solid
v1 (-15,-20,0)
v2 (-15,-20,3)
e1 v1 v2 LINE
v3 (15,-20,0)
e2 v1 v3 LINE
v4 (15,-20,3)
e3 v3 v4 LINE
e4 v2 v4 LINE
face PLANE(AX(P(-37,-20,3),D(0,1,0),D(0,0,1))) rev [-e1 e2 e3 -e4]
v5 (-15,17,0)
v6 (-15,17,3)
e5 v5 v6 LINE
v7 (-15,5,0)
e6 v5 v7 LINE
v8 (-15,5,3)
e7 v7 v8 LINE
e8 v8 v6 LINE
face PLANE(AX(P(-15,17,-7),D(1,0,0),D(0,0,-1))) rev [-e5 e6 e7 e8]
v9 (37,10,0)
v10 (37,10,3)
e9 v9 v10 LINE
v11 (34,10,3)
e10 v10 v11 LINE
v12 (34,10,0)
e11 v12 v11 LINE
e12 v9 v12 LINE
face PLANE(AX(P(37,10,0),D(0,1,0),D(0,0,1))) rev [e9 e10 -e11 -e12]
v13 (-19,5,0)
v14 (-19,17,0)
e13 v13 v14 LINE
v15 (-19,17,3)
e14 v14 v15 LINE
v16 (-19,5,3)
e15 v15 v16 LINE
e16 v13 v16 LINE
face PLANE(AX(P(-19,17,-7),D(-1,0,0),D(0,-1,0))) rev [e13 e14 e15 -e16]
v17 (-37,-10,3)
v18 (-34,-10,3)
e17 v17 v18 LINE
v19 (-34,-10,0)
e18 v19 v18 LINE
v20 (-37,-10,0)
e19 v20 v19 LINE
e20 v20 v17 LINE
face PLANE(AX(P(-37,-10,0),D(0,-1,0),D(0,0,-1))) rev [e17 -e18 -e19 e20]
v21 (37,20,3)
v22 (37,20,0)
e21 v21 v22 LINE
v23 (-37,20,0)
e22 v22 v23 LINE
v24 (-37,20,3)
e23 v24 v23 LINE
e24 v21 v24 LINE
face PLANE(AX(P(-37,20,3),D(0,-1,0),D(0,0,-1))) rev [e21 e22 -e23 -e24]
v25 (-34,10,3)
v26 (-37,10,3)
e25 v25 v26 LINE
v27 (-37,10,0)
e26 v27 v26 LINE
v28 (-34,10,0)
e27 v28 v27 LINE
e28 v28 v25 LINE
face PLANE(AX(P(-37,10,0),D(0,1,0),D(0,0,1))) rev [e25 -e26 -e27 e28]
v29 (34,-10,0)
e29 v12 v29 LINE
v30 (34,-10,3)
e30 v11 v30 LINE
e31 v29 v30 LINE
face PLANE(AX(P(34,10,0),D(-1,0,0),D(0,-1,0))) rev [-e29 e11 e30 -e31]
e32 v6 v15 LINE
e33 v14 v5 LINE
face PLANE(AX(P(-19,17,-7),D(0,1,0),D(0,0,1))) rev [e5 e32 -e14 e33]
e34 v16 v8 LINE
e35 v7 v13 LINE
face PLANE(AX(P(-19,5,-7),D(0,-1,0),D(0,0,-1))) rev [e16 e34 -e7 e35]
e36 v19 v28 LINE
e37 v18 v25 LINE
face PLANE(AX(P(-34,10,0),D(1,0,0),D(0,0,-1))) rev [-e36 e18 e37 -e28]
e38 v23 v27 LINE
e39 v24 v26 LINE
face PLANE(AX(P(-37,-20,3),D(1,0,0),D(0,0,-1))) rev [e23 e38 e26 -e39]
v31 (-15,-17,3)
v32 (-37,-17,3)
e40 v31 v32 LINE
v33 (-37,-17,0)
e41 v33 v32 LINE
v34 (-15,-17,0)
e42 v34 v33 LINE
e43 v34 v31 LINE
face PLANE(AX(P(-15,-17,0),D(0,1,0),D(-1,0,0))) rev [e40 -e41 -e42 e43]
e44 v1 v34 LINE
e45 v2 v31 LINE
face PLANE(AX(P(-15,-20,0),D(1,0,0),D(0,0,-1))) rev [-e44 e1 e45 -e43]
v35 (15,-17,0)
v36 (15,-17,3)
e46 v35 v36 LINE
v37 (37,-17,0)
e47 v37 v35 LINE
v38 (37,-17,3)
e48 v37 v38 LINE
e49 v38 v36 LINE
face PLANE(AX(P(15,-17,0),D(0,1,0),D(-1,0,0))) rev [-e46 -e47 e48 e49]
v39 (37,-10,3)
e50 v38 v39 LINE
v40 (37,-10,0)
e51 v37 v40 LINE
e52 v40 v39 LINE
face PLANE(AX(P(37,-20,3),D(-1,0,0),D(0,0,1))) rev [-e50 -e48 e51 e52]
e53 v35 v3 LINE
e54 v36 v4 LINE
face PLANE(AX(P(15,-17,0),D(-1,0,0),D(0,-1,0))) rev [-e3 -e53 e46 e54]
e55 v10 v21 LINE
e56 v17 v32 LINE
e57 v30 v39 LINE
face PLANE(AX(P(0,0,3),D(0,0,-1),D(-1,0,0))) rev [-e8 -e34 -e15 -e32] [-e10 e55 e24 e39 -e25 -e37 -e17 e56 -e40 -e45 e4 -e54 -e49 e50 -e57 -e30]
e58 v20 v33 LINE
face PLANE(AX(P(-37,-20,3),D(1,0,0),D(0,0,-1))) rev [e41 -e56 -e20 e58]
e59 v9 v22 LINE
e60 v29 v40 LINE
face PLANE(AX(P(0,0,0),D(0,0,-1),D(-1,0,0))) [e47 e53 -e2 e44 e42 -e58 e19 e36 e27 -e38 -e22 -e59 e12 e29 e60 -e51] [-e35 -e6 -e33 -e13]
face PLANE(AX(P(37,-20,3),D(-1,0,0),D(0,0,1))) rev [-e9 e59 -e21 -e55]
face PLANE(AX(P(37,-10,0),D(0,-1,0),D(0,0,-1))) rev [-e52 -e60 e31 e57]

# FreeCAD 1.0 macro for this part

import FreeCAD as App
import Part
import Sketcher
from FreeCAD import Vector

doc = App.newDocument("Part")
body = doc.addObject("PartDesign::Body", "Body")

# Sketch on XY plane
sketch1 = body.newObject("Sketcher::SketchObject", "Sketch")
sketch1.AttachmentSupport = (doc.getObject("XY_Plane"), [""])
sketch1.MapMode = "FlatFace"
sketch1.addGeometry([
    Part.LineSegment(Vector(-37, 20, 0), Vector(-37, -20, 0)),
    Part.LineSegment(Vector(-37, -20, 0), Vector(37, -20, 0)),
    Part.LineSegment(Vector(37, -20, 0), Vector(37, 20, 0)),
    Part.LineSegment(Vector(37, 20, 0), Vector(-37, 20, 0)),
], False)
sketch1.addConstraint([
    Sketcher.Constraint("Coincident", 0, 2, 1, 1),
    Sketcher.Constraint("Coincident", 1, 2, 2, 1),
    Sketcher.Constraint("Coincident", 2, 2, 3, 1),
    Sketcher.Constraint("Coincident", 3, 2, 0, 1),
    Sketcher.Constraint("Vertical", 0),
    Sketcher.Constraint("Horizontal", 1),
    Sketcher.Constraint("Vertical", 2),
    Sketcher.Constraint("Horizontal", 3),
    Sketcher.Constraint("Symmetric", 0, 2, 2, 2, -1, 1),
    Sketcher.Constraint("DistanceX", 1, 1, 1, 2, 74.0),
    Sketcher.Constraint("DistanceY", 0, 2, 0, 1, 40.0),
])
pad1 = body.newObject("PartDesign::Pad", "Pad")
pad1.Profile = sketch1
pad1.Length = 3

# Sketch on XY plane
sketch2 = body.newObject("Sketcher::SketchObject", "Sketch001")
sketch2.AttachmentSupport = (doc.getObject("XY_Plane"), [""])
sketch2.MapMode = "FlatFace"
sketch2.AttachmentOffset = App.Placement(Vector(0, 0, 3), App.Rotation())
sketch2.addGeometry([
    Part.LineSegment(Vector(-37, -17, 0), Vector(-37, -20, 0)),  # 0
    Part.LineSegment(Vector(-37, -20, 0), Vector(-15, -20, 0)),  # 1
    Part.LineSegment(Vector(-15, -20, 0), Vector(-15, -17, 0)),  # 2
    Part.LineSegment(Vector(-15, -17, 0), Vector(-37, -17, 0)),  # 3
    Part.LineSegment(Vector(15, -17, 0), Vector(15, -20, 0)),  # 4
    Part.LineSegment(Vector(15, -20, 0), Vector(37, -20, 0)),  # 5
    Part.LineSegment(Vector(37, -20, 0), Vector(37, -17, 0)),  # 6
    Part.LineSegment(Vector(37, -17, 0), Vector(15, -17, 0)),  # 7
    Part.LineSegment(Vector(-37, 10, 0), Vector(-37, -10, 0)),  # 8
    Part.LineSegment(Vector(-37, -10, 0), Vector(-34, -10, 0)),  # 9
    Part.LineSegment(Vector(-34, -10, 0), Vector(-34, 10, 0)),  # 10
    Part.LineSegment(Vector(-34, 10, 0), Vector(-37, 10, 0)),  # 11
    Part.LineSegment(Vector(34, 10, 0), Vector(34, -10, 0)),  # 12
    Part.LineSegment(Vector(34, -10, 0), Vector(37, -10, 0)),  # 13
    Part.LineSegment(Vector(37, -10, 0), Vector(37, 10, 0)),  # 14
    Part.LineSegment(Vector(37, 10, 0), Vector(34, 10, 0)),  # 15
], False)
sketch2.addConstraint([
    Sketcher.Constraint("Coincident", 0, 2, 1, 1),
    Sketcher.Constraint("Coincident", 1, 2, 2, 1),
    Sketcher.Constraint("Coincident", 2, 2, 3, 1),
    Sketcher.Constraint("Coincident", 3, 2, 0, 1),
    Sketcher.Constraint("Coincident", 4, 2, 5, 1),
    Sketcher.Constraint("Coincident", 5, 2, 6, 1),
    Sketcher.Constraint("Coincident", 6, 2, 7, 1),
    Sketcher.Constraint("Coincident", 7, 2, 4, 1),
    Sketcher.Constraint("Coincident", 8, 2, 9, 1),
    Sketcher.Constraint("Coincident", 9, 2, 10, 1),
    Sketcher.Constraint("Coincident", 10, 2, 11, 1),
    Sketcher.Constraint("Coincident", 11, 2, 8, 1),
    Sketcher.Constraint("Coincident", 12, 2, 13, 1),
    Sketcher.Constraint("Coincident", 13, 2, 14, 1),
    Sketcher.Constraint("Coincident", 14, 2, 15, 1),
    Sketcher.Constraint("Coincident", 15, 2, 12, 1),
    Sketcher.Constraint("Vertical", 0),
    Sketcher.Constraint("Horizontal", 1),
    Sketcher.Constraint("Vertical", 2),
    Sketcher.Constraint("Horizontal", 3),
    Sketcher.Constraint("Vertical", 4),
    Sketcher.Constraint("Horizontal", 5),
    Sketcher.Constraint("Vertical", 6),
    Sketcher.Constraint("Horizontal", 7),
    Sketcher.Constraint("Vertical", 8),
    Sketcher.Constraint("Horizontal", 9),
    Sketcher.Constraint("Vertical", 10),
    Sketcher.Constraint("Horizontal", 11),
    Sketcher.Constraint("Vertical", 12),
    Sketcher.Constraint("Horizontal", 13),
    Sketcher.Constraint("Vertical", 14),
    Sketcher.Constraint("Horizontal", 15),
    Sketcher.Constraint("Symmetric", 10, 2, 12, 2, -1, 1),
    Sketcher.Constraint("Symmetric", 8, 2, 14, 2, -1, 1),
    Sketcher.Constraint("Symmetric", 1, 2, 4, 2, -2),
    Sketcher.Constraint("Symmetric", 3, 2, 6, 2, -2),
    Sketcher.Constraint("Horizontal", 9, 2, 12, 2),
    Sketcher.Constraint("Vertical", 3, 2, 8, 2),
    Sketcher.Constraint("Equal", 15, 0),
    Sketcher.Constraint("DistanceX", 1, 1, 1, 2, 22.0),
    Sketcher.Constraint("DistanceX", 9, 1, 9, 2, 3.0),
    Sketcher.Constraint("DistanceY", 8, 2, 8, 1, 20.0),
    Sketcher.Constraint("DistanceX", 0, 2, -1, 1, 37.0),
    Sketcher.Constraint("DistanceY", 0, 2, -1, 1, 20.0),
])
pocket1 = body.newObject("PartDesign::Pocket", "Pocket")
pocket1.Profile = sketch2
pocket1.Length = 3

# Sketch on XY plane
sketch3 = body.newObject("Sketcher::SketchObject", "Sketch002")
sketch3.AttachmentSupport = (doc.getObject("XY_Plane"), [""])
sketch3.MapMode = "FlatFace"
sketch3.AttachmentOffset = App.Placement(Vector(0, 0, 3), App.Rotation())
sketch3.addGeometry([
    Part.LineSegment(Vector(-19, 17, 0), Vector(-19, 5, 0)),
    Part.LineSegment(Vector(-19, 5, 0), Vector(-15, 5, 0)),
    Part.LineSegment(Vector(-15, 5, 0), Vector(-15, 17, 0)),
    Part.LineSegment(Vector(-15, 17, 0), Vector(-19, 17, 0)),
], False)
sketch3.addConstraint([
    Sketcher.Constraint("Coincident", 0, 2, 1, 1),
    Sketcher.Constraint("Coincident", 1, 2, 2, 1),
    Sketcher.Constraint("Coincident", 2, 2, 3, 1),
    Sketcher.Constraint("Coincident", 3, 2, 0, 1),
    Sketcher.Constraint("Vertical", 0),
    Sketcher.Constraint("Horizontal", 1),
    Sketcher.Constraint("Vertical", 2),
    Sketcher.Constraint("Horizontal", 3),
    Sketcher.Constraint("DistanceX", 1, 1, 1, 2, 4.0),
    Sketcher.Constraint("DistanceY", 0, 2, 0, 1, 12.0),
    Sketcher.Constraint("DistanceX", 0, 2, -1, 1, 19.0),
    Sketcher.Constraint("DistanceY", -1, 1, 0, 2, 5.0),
])
pocket2 = body.newObject("PartDesign::Pocket", "Pocket001")
pocket2.Profile = sketch3
pocket2.Length = 10

doc.recompute()
